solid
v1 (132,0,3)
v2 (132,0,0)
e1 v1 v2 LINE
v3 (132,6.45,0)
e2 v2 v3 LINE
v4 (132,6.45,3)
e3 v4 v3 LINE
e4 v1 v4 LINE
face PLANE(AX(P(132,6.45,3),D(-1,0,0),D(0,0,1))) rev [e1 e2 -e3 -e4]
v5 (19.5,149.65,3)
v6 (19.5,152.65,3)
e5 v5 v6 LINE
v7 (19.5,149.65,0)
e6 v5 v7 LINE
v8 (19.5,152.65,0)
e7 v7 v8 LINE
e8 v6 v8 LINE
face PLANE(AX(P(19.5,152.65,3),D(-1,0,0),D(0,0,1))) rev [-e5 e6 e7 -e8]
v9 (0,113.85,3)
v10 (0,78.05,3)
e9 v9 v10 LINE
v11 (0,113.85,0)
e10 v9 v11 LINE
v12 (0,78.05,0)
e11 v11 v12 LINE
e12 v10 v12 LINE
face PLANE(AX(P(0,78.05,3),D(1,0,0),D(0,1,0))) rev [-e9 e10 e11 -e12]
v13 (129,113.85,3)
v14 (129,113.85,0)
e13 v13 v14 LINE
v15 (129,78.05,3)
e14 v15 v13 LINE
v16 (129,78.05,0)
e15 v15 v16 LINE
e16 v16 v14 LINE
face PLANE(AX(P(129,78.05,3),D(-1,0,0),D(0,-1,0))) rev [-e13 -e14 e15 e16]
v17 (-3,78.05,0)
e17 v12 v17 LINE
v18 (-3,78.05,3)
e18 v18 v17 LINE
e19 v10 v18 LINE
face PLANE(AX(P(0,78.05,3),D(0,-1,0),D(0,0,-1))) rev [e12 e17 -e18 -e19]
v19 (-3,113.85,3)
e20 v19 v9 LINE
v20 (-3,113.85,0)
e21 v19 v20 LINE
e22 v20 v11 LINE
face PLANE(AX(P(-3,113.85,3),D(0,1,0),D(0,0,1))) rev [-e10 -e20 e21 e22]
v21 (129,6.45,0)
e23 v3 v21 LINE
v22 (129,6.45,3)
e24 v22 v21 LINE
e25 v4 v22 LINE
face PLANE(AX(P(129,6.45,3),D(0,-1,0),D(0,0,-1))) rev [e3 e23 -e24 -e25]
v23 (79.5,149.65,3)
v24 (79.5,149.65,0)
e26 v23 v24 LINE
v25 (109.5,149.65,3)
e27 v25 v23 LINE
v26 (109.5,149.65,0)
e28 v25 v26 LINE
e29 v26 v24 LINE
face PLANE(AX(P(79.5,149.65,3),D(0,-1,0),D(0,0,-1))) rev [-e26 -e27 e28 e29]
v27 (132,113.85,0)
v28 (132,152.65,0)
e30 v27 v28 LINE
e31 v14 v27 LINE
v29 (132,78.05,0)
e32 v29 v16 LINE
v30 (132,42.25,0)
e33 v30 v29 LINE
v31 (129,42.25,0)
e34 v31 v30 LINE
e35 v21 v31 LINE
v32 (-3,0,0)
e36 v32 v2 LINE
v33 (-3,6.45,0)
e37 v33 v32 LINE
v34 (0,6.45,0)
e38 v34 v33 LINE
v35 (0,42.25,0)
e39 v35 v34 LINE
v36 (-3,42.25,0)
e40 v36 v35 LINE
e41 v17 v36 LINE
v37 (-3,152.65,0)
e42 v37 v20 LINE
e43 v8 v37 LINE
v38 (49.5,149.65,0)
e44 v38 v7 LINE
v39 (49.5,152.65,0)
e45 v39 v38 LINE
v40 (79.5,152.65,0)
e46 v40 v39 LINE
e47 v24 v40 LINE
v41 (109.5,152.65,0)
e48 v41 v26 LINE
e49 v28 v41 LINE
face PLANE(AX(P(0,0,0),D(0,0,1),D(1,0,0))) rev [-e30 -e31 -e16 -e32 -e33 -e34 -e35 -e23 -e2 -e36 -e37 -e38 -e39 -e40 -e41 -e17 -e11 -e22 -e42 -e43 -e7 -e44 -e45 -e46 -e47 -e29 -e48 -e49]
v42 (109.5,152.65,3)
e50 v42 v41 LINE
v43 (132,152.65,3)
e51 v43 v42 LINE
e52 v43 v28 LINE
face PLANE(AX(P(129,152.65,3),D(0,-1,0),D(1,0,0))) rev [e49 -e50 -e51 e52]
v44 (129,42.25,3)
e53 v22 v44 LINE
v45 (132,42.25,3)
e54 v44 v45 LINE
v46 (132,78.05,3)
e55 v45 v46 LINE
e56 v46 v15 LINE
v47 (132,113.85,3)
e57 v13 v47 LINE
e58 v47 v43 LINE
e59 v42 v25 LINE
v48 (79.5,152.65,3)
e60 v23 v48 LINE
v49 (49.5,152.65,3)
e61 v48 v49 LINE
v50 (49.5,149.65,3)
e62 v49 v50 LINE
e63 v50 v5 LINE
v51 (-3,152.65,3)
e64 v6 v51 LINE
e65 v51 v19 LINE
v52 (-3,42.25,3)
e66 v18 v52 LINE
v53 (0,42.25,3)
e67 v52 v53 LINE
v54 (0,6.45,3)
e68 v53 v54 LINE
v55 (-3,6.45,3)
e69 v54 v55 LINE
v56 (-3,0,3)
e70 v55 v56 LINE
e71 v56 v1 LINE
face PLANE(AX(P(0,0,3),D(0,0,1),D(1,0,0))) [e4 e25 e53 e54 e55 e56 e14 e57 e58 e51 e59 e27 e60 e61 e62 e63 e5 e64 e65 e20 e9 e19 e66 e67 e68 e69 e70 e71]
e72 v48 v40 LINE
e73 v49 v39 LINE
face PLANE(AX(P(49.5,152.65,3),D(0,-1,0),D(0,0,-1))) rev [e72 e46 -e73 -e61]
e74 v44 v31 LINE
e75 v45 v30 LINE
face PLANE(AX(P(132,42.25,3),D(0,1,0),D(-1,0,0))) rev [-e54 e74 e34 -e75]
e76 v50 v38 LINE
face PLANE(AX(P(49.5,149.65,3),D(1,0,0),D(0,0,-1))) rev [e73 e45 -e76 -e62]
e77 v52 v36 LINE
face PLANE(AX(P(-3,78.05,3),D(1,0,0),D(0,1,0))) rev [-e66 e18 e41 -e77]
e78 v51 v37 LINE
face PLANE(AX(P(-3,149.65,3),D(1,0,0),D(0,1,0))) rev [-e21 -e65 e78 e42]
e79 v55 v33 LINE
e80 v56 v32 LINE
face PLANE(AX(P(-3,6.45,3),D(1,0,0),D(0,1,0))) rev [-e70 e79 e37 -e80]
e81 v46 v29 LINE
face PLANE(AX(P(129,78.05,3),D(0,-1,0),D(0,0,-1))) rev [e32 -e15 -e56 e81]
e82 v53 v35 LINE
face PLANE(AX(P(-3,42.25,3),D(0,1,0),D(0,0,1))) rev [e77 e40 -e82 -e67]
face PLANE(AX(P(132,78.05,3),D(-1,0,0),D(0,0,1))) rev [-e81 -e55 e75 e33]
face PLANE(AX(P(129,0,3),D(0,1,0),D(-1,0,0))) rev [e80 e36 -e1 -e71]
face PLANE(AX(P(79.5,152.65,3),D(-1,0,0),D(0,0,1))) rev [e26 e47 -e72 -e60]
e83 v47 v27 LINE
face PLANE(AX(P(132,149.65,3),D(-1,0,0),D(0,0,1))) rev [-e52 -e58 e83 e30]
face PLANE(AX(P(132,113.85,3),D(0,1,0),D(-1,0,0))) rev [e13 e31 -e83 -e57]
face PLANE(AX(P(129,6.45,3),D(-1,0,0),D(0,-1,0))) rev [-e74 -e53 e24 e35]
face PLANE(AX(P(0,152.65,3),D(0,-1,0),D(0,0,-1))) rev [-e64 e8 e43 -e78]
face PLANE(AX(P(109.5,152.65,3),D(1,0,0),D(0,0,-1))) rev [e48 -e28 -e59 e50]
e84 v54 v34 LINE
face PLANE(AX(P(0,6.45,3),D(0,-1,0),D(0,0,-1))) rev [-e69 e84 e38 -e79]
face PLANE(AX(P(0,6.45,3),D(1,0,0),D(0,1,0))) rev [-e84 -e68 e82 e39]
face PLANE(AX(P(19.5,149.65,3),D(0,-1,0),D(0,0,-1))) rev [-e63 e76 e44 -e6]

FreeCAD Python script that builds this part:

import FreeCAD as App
import Part
import Sketcher
from FreeCAD import Vector
Q = App.Units.Quantity


def add_polygon(sketch, points):
    """Adds a closed chain of lines whose ends are joined by coincident constraints."""
    first, n = sketch.GeometryCount, len(points)
    for a, b in zip(points, points[1:] + points[:1]):
        sketch.addGeometry(Part.LineSegment(App.Vector(*a, 0), App.Vector(*b, 0)), False)
    for i in range(n):
        sketch.addConstraint(Sketcher.Constraint("Coincident", first + i, 2, first + (i + 1) % n, 1))

doc = App.newDocument("Part")
body = doc.addObject("PartDesign::Body", "Body")

# Sketch on XY plane
sketch1 = body.newObject("Sketcher::SketchObject", "Sketch")
sketch1.AttachmentSupport = (doc.getObject("XY_Plane"), [""])
sketch1.MapMode = "FlatFace"
add_polygon(sketch1, [(132, 0), (132, 6.5), (129, 6.5), (129, 42.2), (132, 42.2), (132, 78), (129, 78), (129, 113.8), (132, 113.8), (132, 152.7), (109.5, 152.7), (109.5, 149.7), (79.5, 149.7), (79.5, 152.7), (49.5, 152.7), (49.5, 149.7), (19.5, 149.7), (19.5, 152.7), (-3, 152.7), (-3, 113.8), (0, 113.8), (0, 78), (-3, 78), (-3, 42.2), (0, 42.2), (0, 6.5), (-3, 6.5), (-3, 0)])  # lines 0-27
sketch1.addConstraint(Sketcher.Constraint("Vertical", 0))
sketch1.addConstraint(Sketcher.Constraint("Horizontal", 1))
sketch1.addConstraint(Sketcher.Constraint("Vertical", 2))
sketch1.addConstraint(Sketcher.Constraint("Horizontal", 3))
sketch1.addConstraint(Sketcher.Constraint("Vertical", 4))
sketch1.addConstraint(Sketcher.Constraint("Horizontal", 5))
sketch1.addConstraint(Sketcher.Constraint("Vertical", 6))
sketch1.addConstraint(Sketcher.Constraint("Horizontal", 7))
sketch1.addConstraint(Sketcher.Constraint("Vertical", 8))
sketch1.addConstraint(Sketcher.Constraint("Horizontal", 9))
sketch1.addConstraint(Sketcher.Constraint("Vertical", 10))
sketch1.addConstraint(Sketcher.Constraint("Horizontal", 11))
sketch1.addConstraint(Sketcher.Constraint("Vertical", 12))
sketch1.addConstraint(Sketcher.Constraint("Horizontal", 13))
sketch1.addConstraint(Sketcher.Constraint("Vertical", 14))
sketch1.addConstraint(Sketcher.Constraint("Horizontal", 15))
sketch1.addConstraint(Sketcher.Constraint("Vertical", 16))
sketch1.addConstraint(Sketcher.Constraint("Horizontal", 17))
sketch1.addConstraint(Sketcher.Constraint("Vertical", 18))
sketch1.addConstraint(Sketcher.Constraint("Horizontal", 19))
sketch1.addConstraint(Sketcher.Constraint("Vertical", 20))
sketch1.addConstraint(Sketcher.Constraint("Horizontal", 21))
sketch1.addConstraint(Sketcher.Constraint("Vertical", 22))
sketch1.addConstraint(Sketcher.Constraint("Horizontal", 23))
sketch1.addConstraint(Sketcher.Constraint("Vertical", 24))
sketch1.addConstraint(Sketcher.Constraint("Horizontal", 25))
sketch1.addConstraint(Sketcher.Constraint("Vertical", 26))
sketch1.addConstraint(Sketcher.Constraint("Horizontal", 27))
sketch1.addConstraint(Sketcher.Constraint("PointOnObject", 19, 2, -2))
sketch1.addConstraint(Sketcher.Constraint("PointOnObject", 23, 2, -2))
sketch1.addConstraint(Sketcher.Constraint("PointOnObject", 26, 2, -1))
sketch1.addConstraint(Sketcher.Constraint("Horizontal", 9, 2, 12, 2))
sketch1.addConstraint(Sketcher.Constraint("Horizontal", 11, 2, 14, 2))
sketch1.addConstraint(Sketcher.Constraint("Horizontal", 13, 2, 16, 2))
sketch1.addConstraint(Sketcher.Constraint("Horizontal", 7, 2, 18, 2))
sketch1.addConstraint(Sketcher.Constraint("Horizontal", 5, 2, 20, 2))
sketch1.addConstraint(Sketcher.Constraint("Horizontal", 3, 2, 22, 2))
sketch1.addConstraint(Sketcher.Constraint("Horizontal", 1, 2, 24, 2))
sketch1.addConstraint(Sketcher.Constraint("Vertical", 0, 2, 3, 2))
sketch1.addConstraint(Sketcher.Constraint("Vertical", 2, 2, 5, 2))
sketch1.addConstraint(Sketcher.Constraint("Vertical", 4, 2, 7, 2))
sketch1.addConstraint(Sketcher.Constraint("Vertical", 18, 2, 21, 2))
sketch1.addConstraint(Sketcher.Constraint("Vertical", 22, 2, 25, 2))
sketch1.addConstraint(Sketcher.Constraint("Equal", 11, 13))
sketch1.addConstraint(Sketcher.Constraint("Equal", 13, 15))
sketch1.addConstraint(Sketcher.Constraint("Equal", 9, 17))
sketch1.addConstraint(Sketcher.Constraint("Equal", 7, 19))
sketch1.addConstraint(Sketcher.Constraint("Equal", 2, 4))
sketch1.addConstraint(Sketcher.Constraint("Equal", 4, 6))
sketch1.addConstraint(Sketcher.Constraint("Equal", 25, 10))
sketch1.addConstraint(Sketcher.Constraint("DistanceX", 1, 2, 1, 1, Q("3 mm")))
sketch1.addConstraint(Sketcher.Constraint("DistanceX", 11, 2, 11, 1, Q("30 mm")))
sketch1.addConstraint(Sketcher.Constraint("DistanceX", 27, 1, 27, 2, Q("135 mm")))
sketch1.addConstraint(Sketcher.Constraint("DistanceY", 2, 1, 2, 2, Q("35.8 mm")))
sketch1.addConstraint(Sketcher.Constraint("DistanceY", 8, 1, 8, 2, Q("38.8 mm")))
sketch1.addConstraint(Sketcher.Constraint("DistanceY", 0, 1, 0, 2, Q("6.45 mm")))
pad1 = body.newObject("PartDesign::Pad", "Pad")
pad1.Profile = sketch1
pad1.Length = 3

doc.recompute()
